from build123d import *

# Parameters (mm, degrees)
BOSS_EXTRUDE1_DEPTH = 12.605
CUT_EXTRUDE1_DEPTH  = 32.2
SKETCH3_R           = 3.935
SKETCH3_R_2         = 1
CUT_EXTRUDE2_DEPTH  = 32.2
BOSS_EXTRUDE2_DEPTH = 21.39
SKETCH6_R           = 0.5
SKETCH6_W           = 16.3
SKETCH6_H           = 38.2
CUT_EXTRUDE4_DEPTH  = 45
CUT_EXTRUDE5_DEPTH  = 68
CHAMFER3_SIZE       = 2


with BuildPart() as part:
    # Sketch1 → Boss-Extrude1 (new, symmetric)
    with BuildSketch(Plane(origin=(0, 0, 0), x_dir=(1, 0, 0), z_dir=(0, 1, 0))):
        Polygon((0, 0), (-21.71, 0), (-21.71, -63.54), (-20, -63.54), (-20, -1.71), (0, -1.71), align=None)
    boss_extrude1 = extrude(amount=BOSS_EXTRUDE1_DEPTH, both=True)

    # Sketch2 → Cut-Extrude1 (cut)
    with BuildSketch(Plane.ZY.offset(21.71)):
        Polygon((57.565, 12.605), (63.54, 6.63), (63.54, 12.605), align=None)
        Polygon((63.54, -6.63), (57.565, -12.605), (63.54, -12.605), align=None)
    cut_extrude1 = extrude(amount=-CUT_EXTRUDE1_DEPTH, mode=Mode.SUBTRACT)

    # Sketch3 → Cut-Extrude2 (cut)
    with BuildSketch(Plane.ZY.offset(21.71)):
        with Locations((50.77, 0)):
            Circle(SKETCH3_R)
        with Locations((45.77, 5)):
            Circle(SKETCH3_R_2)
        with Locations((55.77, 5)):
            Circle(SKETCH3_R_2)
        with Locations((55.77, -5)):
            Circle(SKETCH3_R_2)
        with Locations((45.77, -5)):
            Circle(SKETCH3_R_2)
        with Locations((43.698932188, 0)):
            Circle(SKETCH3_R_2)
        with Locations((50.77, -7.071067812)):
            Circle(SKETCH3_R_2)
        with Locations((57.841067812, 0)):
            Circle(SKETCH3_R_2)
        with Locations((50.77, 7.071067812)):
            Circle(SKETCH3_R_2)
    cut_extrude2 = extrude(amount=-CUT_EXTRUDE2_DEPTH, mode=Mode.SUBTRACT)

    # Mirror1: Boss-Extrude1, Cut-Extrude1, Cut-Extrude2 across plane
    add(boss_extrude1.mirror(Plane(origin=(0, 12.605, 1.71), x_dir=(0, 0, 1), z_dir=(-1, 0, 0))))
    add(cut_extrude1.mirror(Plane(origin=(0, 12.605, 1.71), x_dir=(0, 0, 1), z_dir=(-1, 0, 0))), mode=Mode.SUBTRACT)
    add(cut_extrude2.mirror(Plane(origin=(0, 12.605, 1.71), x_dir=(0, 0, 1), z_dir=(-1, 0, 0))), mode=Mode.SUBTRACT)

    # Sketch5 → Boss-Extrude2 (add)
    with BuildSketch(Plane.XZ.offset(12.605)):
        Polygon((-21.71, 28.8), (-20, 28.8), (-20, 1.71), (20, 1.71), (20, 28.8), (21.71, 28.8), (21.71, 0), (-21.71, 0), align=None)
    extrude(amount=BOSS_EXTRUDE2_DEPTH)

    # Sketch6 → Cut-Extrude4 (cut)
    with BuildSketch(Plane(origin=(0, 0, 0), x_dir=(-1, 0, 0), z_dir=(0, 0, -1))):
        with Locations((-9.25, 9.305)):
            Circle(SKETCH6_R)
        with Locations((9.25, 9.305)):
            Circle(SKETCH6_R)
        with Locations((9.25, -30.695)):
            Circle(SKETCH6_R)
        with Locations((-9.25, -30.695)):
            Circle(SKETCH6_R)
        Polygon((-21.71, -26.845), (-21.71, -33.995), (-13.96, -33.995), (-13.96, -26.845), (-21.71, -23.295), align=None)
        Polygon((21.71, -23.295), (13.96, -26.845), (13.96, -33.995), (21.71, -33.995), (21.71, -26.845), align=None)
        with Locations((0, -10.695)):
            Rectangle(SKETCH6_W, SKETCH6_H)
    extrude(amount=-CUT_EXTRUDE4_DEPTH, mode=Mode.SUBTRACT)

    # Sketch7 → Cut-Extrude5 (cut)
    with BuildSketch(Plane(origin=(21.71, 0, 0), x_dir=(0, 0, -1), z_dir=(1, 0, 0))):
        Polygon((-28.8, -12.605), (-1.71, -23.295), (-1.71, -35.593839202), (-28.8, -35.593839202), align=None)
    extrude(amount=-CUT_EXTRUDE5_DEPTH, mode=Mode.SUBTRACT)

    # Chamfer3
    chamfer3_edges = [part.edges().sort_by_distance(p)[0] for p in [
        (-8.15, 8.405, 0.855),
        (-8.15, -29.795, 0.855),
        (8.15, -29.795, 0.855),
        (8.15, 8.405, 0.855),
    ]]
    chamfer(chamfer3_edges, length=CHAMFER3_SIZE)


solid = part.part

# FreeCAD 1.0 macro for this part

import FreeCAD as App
import Part
import Sketcher
from FreeCAD import Vector


def edges_at(feature, points):
    """Names of the edges that pass closest to the given points."""
    edges = feature.Shape.Edges
    near = lambda p: min(range(len(edges)), key=lambda i: edges[i].distToShape(Part.Vertex(*p))[0])
    return sorted({f"Edge{near(p) + 1}" for p in points})

doc = App.newDocument("Part")
body = doc.addObject("PartDesign::Body", "Body")

# Sketch on XZ plane
sketch1 = body.newObject("Sketcher::SketchObject", "Sketch")
sketch1.AttachmentSupport = (doc.getObject("XZ_Plane"), [""])
sketch1.MapMode = "FlatFace"
sketch1.addGeometry([
    Part.LineSegment(Vector(0, 0, 0), Vector(-21.7, 0, 0)),  # 0
    Part.LineSegment(Vector(-21.7, 0, 0), Vector(-21.7, 63.5, 0)),  # 1
    Part.LineSegment(Vector(-21.7, 63.5, 0), Vector(-20, 63.5, 0)),  # 2
    Part.LineSegment(Vector(-20, 63.5, 0), Vector(-20, 1.7, 0)),  # 3
    Part.LineSegment(Vector(-20, 1.7, 0), Vector(0, 1.7, 0)),  # 4
    Part.LineSegment(Vector(0, 1.7, 0), Vector(0, 0, 0)),  # 5
], False)
sketch1.addConstraint([
    Sketcher.Constraint("Coincident", 0, 2, 1, 1),
    Sketcher.Constraint("Coincident", 1, 2, 2, 1),
    Sketcher.Constraint("Coincident", 2, 2, 3, 1),
    Sketcher.Constraint("Coincident", 3, 2, 4, 1),
    Sketcher.Constraint("Coincident", 4, 2, 5, 1),
    Sketcher.Constraint("Coincident", 5, 2, 0, 1),
    Sketcher.Constraint("Horizontal", 0),
    Sketcher.Constraint("Vertical", 1),
    Sketcher.Constraint("Horizontal", 2),
    Sketcher.Constraint("Vertical", 3),
    Sketcher.Constraint("Horizontal", 4),
    Sketcher.Constraint("Vertical", 5),
    Sketcher.Constraint("Coincident", 5, 2, -1, 1),
    Sketcher.Constraint("Equal", 2, 5),
    Sketcher.Constraint("DistanceX", 4, 1, 4, 2, 20.0),
    Sketcher.Constraint("DistanceX", 0, 2, 0, 1, 21.71),
    Sketcher.Constraint("DistanceY", 1, 1, 1, 2, 63.54),
])
pad1 = body.newObject("PartDesign::Pad", "Pad")
pad1.Profile = sketch1
pad1.Length = 25.21
pad1.Midplane = True

# Sketch on YZ plane
sketch2 = body.newObject("Sketcher::SketchObject", "Sketch001")
sketch2.AttachmentSupport = (doc.getObject("YZ_Plane"), [""])
sketch2.MapMode = "FlatFace"
sketch2.AttachmentOffset = App.Placement(Vector(0, 0, -21.71), App.Rotation())
sketch2.addGeometry([
    Part.LineSegment(Vector(13, 58, 0), Vector(7, 64, 0)),  # 0
    Part.LineSegment(Vector(7, 64, 0), Vector(13, 64, 0)),  # 1
    Part.LineSegment(Vector(13, 64, 0), Vector(13, 58, 0)),  # 2
    Part.LineSegment(Vector(-7, 64, 0), Vector(-13, 58, 0)),  # 3
    Part.LineSegment(Vector(-13, 58, 0), Vector(-13, 64, 0)),  # 4
    Part.LineSegment(Vector(-13, 64, 0), Vector(-7, 64, 0)),  # 5
], False)
sketch2.addConstraint([
    Sketcher.Constraint("Coincident", 0, 2, 1, 1),
    Sketcher.Constraint("Coincident", 1, 2, 2, 1),
    Sketcher.Constraint("Coincident", 2, 2, 0, 1),
    Sketcher.Constraint("Coincident", 3, 2, 4, 1),
    Sketcher.Constraint("Coincident", 4, 2, 5, 1),
    Sketcher.Constraint("Coincident", 5, 2, 3, 1),
    Sketcher.Constraint("Horizontal", 1),
    Sketcher.Constraint("Vertical", 2),
    Sketcher.Constraint("Vertical", 4),
    Sketcher.Constraint("Horizontal", 5),
    Sketcher.Constraint("Symmetric", 2, 2, 3, 2, -2),
    Sketcher.Constraint("Symmetric", 0, 2, 5, 2, -2),
    Sketcher.Constraint("Perpendicular", 0, 3),
    Sketcher.Constraint("DistanceX", 1, 1, 1, 2, 5.975),
    Sketcher.Constraint("DistanceX", -1, 1, 0, 2, 6.63),
    Sketcher.Constraint("DistanceY", -1, 1, 0, 2, 63.54),
])
pocket1 = body.newObject("PartDesign::Pocket", "Pocket")
pocket1.Profile = sketch2
pocket1.Length = 32.2
pocket1.Reversed = True

# Sketch on YZ plane
sketch3 = body.newObject("Sketcher::SketchObject", "Sketch002")
sketch3.AttachmentSupport = (doc.getObject("YZ_Plane"), [""])
sketch3.MapMode = "FlatFace"
sketch3.AttachmentOffset = App.Placement(Vector(0, 0, -21.71), App.Rotation())
sketch3.addGeometry([
    Part.Circle(Vector(0, 50.8, 0), Vector(0, 0, 1), 3.9),  # 0
    Part.Circle(Vector(5, 45.8, 0), Vector(0, 0, 1), 1),  # 1
    Part.Circle(Vector(5, 55.8, 0), Vector(0, 0, 1), 1),  # 2
    Part.Circle(Vector(-5, 55.8, 0), Vector(0, 0, 1), 1),  # 3
    Part.Circle(Vector(-5, 45.8, 0), Vector(0, 0, 1), 1),  # 4
    Part.Circle(Vector(0, 43.7, 0), Vector(0, 0, 1), 1),  # 5
    Part.Circle(Vector(-7.1, 50.8, 0), Vector(0, 0, 1), 1),  # 6
    Part.Circle(Vector(0, 57.8, 0), Vector(0, 0, 1), 1),  # 7
    Part.Circle(Vector(7.1, 50.8, 0), Vector(0, 0, 1), 1),  # 8
], False)
sketch3.addConstraint([
    Sketcher.Constraint("Equal", 1, 2),
    Sketcher.Constraint("Equal", 2, 3),
    Sketcher.Constraint("Equal", 3, 4),
    Sketcher.Constraint("Equal", 4, 5),
    Sketcher.Constraint("Equal", 5, 6),
    Sketcher.Constraint("Equal", 6, 7),
    Sketcher.Constraint("Equal", 7, 8),
    Sketcher.Constraint("Symmetric", 2, 3, 3, 3, -2),
    Sketcher.Constraint("Symmetric", 1, 3, 4, 3, -2),
    Sketcher.Constraint("Symmetric", 6, 3, 8, 3, -2),
    Sketcher.Constraint("PointOnObject", 0, 3, -2),
    Sketcher.Constraint("PointOnObject", 5, 3, -2),
    Sketcher.Constraint("PointOnObject", 7, 3, -2),
    Sketcher.Constraint("Horizontal", 0, 3, 6, 3),
    Sketcher.Constraint("Vertical", 1, 3, 2, 3),
    Sketcher.Constraint("Diameter", 1, 2.0),
    Sketcher.Constraint("Diameter", 0, 7.87),
    Sketcher.Constraint("DistanceX", -1, 1, 1, 3, 5.0),
    Sketcher.Constraint("DistanceY", 1, 3, 0, 3, 5.0),
    Sketcher.Constraint("DistanceY", 0, 3, 2, 3, 5.0),
    Sketcher.Constraint("DistanceY", -1, 1, 0, 3, 50.77),
    Sketcher.Constraint("DistanceY", -1, 1, 5, 3, 43.698932),
    Sketcher.Constraint("DistanceX", 6, 3, -1, 1, 7.071068),
    Sketcher.Constraint("DistanceY", -1, 1, 7, 3, 57.841068),
])
pocket2 = body.newObject("PartDesign::Pocket", "Pocket001")
pocket2.Profile = sketch3
pocket2.Length = 32.2
pocket2.Reversed = True
doc.recompute()

mirrored = body.newObject("PartDesign::Mirrored", "Mirrored")
mirrored.Originals = [pad1, pocket1, pocket2]
mirrored.MirrorPlane = (doc.getObject("YZ_Plane"), [""])
body.Tip = mirrored

# Sketch on XZ plane
sketch4 = body.newObject("Sketcher::SketchObject", "Sketch003")
sketch4.AttachmentSupport = (doc.getObject("XZ_Plane"), [""])
sketch4.MapMode = "FlatFace"
sketch4.AttachmentOffset = App.Placement(Vector(0, 0, 12.605), App.Rotation())
sketch4.addGeometry([
    Part.LineSegment(Vector(-20, 28.8, 0), Vector(-21.7, 28.8, 0)),  # 0
    Part.LineSegment(Vector(-21.7, 28.8, 0), Vector(-21.7, 0, 0)),  # 1
    Part.LineSegment(Vector(-21.7, 0, 0), Vector(21.7, 0, 0)),  # 2
    Part.LineSegment(Vector(21.7, 0, 0), Vector(21.7, 28.8, 0)),  # 3
    Part.LineSegment(Vector(21.7, 28.8, 0), Vector(20, 28.8, 0)),  # 4
    Part.LineSegment(Vector(20, 28.8, 0), Vector(20, 1.7, 0)),  # 5
    Part.LineSegment(Vector(20, 1.7, 0), Vector(-20, 1.7, 0)),  # 6
    Part.LineSegment(Vector(-20, 1.7, 0), Vector(-20, 28.8, 0)),  # 7
], False)
sketch4.addConstraint([
    Sketcher.Constraint("Coincident", 0, 2, 1, 1),
    Sketcher.Constraint("Coincident", 1, 2, 2, 1),
    Sketcher.Constraint("Coincident", 2, 2, 3, 1),
    Sketcher.Constraint("Coincident", 3, 2, 4, 1),
    Sketcher.Constraint("Coincident", 4, 2, 5, 1),
    Sketcher.Constraint("Coincident", 5, 2, 6, 1),
    Sketcher.Constraint("Coincident", 6, 2, 7, 1),
    Sketcher.Constraint("Coincident", 7, 2, 0, 1),
    Sketcher.Constraint("Horizontal", 0),
    Sketcher.Constraint("Vertical", 1),
    Sketcher.Constraint("Horizontal", 2),
    Sketcher.Constraint("Vertical", 3),
    Sketcher.Constraint("Horizontal", 4),
    Sketcher.Constraint("Vertical", 5),
    Sketcher.Constraint("Horizontal", 6),
    Sketcher.Constraint("Vertical", 7),
    Sketcher.Constraint("Symmetric", 1, 2, 2, 2, -1, 1),
    Sketcher.Constraint("Symmetric", 4, 2, 7, 2, -2),
    Sketcher.Constraint("DistanceX", 6, 2, 6, 1, 40.0),
    Sketcher.Constraint("DistanceY", 1, 2, 1, 1, 28.8),
    Sketcher.Constraint("DistanceX", 0, 2, 0, 1, 1.71),
    Sketcher.Constraint("DistanceY", 5, 2, 5, 1, 27.09),
])
pad2 = body.newObject("PartDesign::Pad", "Pad001")
pad2.Profile = sketch4
pad2.Length = 21.39

# Sketch on XY plane
sketch5 = body.newObject("Sketcher::SketchObject", "Sketch004")
sketch5.AttachmentSupport = (doc.getObject("XY_Plane"), [""])
sketch5.MapMode = "FlatFace"
sketch5.addGeometry([
    Part.Circle(Vector(9.2, 9.3, 0), Vector(0, 0, 1), 0.5),  # 0
    Part.Circle(Vector(-9.2, 9.3, 0), Vector(0, 0, 1), 0.5),  # 1
    Part.Circle(Vector(-9.2, -30.7, 0), Vector(0, 0, 1), 0.5),  # 2
    Part.Circle(Vector(9.2, -30.7, 0), Vector(0, 0, 1), 0.5),  # 3
    Part.LineSegment(Vector(21.7, -34, 0), Vector(14, -34, 0)),  # 4
    Part.LineSegment(Vector(14, -34, 0), Vector(14, -26.8, 0)),  # 5
    Part.LineSegment(Vector(14, -26.8, 0), Vector(21.7, -23.3, 0)),  # 6
    Part.LineSegment(Vector(21.7, -23.3, 0), Vector(21.7, -34, 0)),  # 7
    Part.LineSegment(Vector(-21.7, -23.3, 0), Vector(-14, -26.8, 0)),  # 8
    Part.LineSegment(Vector(-14, -26.8, 0), Vector(-14, -34, 0)),  # 9
    Part.LineSegment(Vector(-14, -34, 0), Vector(-21.7, -34, 0)),  # 10
    Part.LineSegment(Vector(-21.7, -34, 0), Vector(-21.7, -23.3, 0)),  # 11
    Part.LineSegment(Vector(8.2, 8.4, 0), Vector(8.2, -29.8, 0)),  # 12
    Part.LineSegment(Vector(8.2, -29.8, 0), Vector(-8.2, -29.8, 0)),  # 13
    Part.LineSegment(Vector(-8.2, -29.8, 0), Vector(-8.2, 8.4, 0)),  # 14
    Part.LineSegment(Vector(-8.2, 8.4, 0), Vector(8.2, 8.4, 0)),  # 15
], False)
sketch5.addConstraint([
    Sketcher.Constraint("Coincident", 4, 2, 5, 1),
    Sketcher.Constraint("Coincident", 5, 2, 6, 1),
    Sketcher.Constraint("Coincident", 6, 2, 7, 1),
    Sketcher.Constraint("Coincident", 7, 2, 4, 1),
    Sketcher.Constraint("Coincident", 8, 2, 9, 1),
    Sketcher.Constraint("Coincident", 9, 2, 10, 1),
    Sketcher.Constraint("Coincident", 10, 2, 11, 1),
    Sketcher.Constraint("Coincident", 11, 2, 8, 1),
    Sketcher.Constraint("Coincident", 12, 2, 13, 1),
    Sketcher.Constraint("Coincident", 13, 2, 14, 1),
    Sketcher.Constraint("Coincident", 14, 2, 15, 1),
    Sketcher.Constraint("Coincident", 15, 2, 12, 1),
    Sketcher.Constraint("Horizontal", 4),
    Sketcher.Constraint("Vertical", 5),
    Sketcher.Constraint("Vertical", 7),
    Sketcher.Constraint("Vertical", 9),
    Sketcher.Constraint("Horizontal", 10),
    Sketcher.Constraint("Vertical", 11),
    Sketcher.Constraint("Vertical", 12),
    Sketcher.Constraint("Horizontal", 13),
    Sketcher.Constraint("Vertical", 14),
    Sketcher.Constraint("Horizontal", 15),
    Sketcher.Constraint("Equal", 0, 1),
    Sketcher.Constraint("Equal", 1, 2),
    Sketcher.Constraint("Equal", 2, 3),
    Sketcher.Constraint("Symmetric", 0, 3, 1, 3, -2),
    Sketcher.Constraint("Symmetric", 2, 3, 3, 3, -2),
    Sketcher.Constraint("Symmetric", 5, 2, 8, 2, -2),
    Sketcher.Constraint("Symmetric", 7, 2, 10, 2, -2),
    Sketcher.Constraint("Horizontal", 6, 2, 11, 2),
    Sketcher.Constraint("Vertical", 1, 3, 2, 3),
    Sketcher.Constraint("Diameter", 0, 1.0),
    Sketcher.Constraint("DistanceX", 13, 2, 13, 1, 16.3),
    Sketcher.Constraint("DistanceY", 7, 2, 7, 1, 10.7),
    Sketcher.Constraint("DistanceY", 12, 2, 12, 1, 38.2),
    Sketcher.Constraint("DistanceY", 2, 3, 1, 3, 40.0),
    Sketcher.Constraint("DistanceX", 4, 2, 4, 1, 7.75),
    Sketcher.Constraint("DistanceY", 5, 1, 5, 2, 7.15),
    Sketcher.Constraint("DistanceX", 1, 3, 0, 3, 18.5),
    Sketcher.Constraint("DistanceY", 4, 2, 3, 3, 3.3),
    Sketcher.Constraint("DistanceX", 12, 2, 3, 3, 1.1),
    Sketcher.Constraint("DistanceY", 3, 3, 12, 2, 0.9),
    Sketcher.Constraint("DistanceX", -1, 1, 4, 2, 13.96),
    Sketcher.Constraint("DistanceY", -1, 1, 0, 3, 9.305),
])
pocket3 = body.newObject("PartDesign::Pocket", "Pocket002")
pocket3.Profile = sketch5
pocket3.Length = 45
pocket3.Reversed = True

# Sketch on YZ plane
sketch6 = body.newObject("Sketcher::SketchObject", "Sketch005")
sketch6.AttachmentSupport = (doc.getObject("YZ_Plane"), [""])
sketch6.MapMode = "FlatFace"
sketch6.AttachmentOffset = App.Placement(Vector(0, 0, 21.71), App.Rotation())
sketch6.addGeometry([
    Part.LineSegment(Vector(-23, 2, 0), Vector(-13, 29, 0)),
    Part.LineSegment(Vector(-13, 29, 0), Vector(-36, 29, 0)),
    Part.LineSegment(Vector(-36, 29, 0), Vector(-36, 2, 0)),
    Part.LineSegment(Vector(-36, 2, 0), Vector(-23, 2, 0)),
], False)
sketch6.addConstraint([
    Sketcher.Constraint("Coincident", 0, 2, 1, 1),
    Sketcher.Constraint("Coincident", 1, 2, 2, 1),
    Sketcher.Constraint("Coincident", 2, 2, 3, 1),
    Sketcher.Constraint("Coincident", 3, 2, 0, 1),
    Sketcher.Constraint("Horizontal", 1),
    Sketcher.Constraint("Vertical", 2),
    Sketcher.Constraint("Horizontal", 3),
    Sketcher.Constraint("DistanceY", 2, 2, 2, 1, 27.09),
    Sketcher.Constraint("DistanceY", -1, 1, 0, 2, 28.8),
    Sketcher.Constraint("DistanceX", 3, 2, 0, 2, 10.69),
    Sketcher.Constraint("DistanceX", 0, 2, -1, 1, 12.605),
    Sketcher.Constraint("DistanceX", 1, 2, 1, 1, 22.988839),
])
pocket4 = body.newObject("PartDesign::Pocket", "Pocket003")
pocket4.Profile = sketch6
pocket4.Length = 68
doc.recompute()

chamfer = body.newObject("PartDesign::Chamfer", "Chamfer")
chamfer.Base = (pocket4, edges_at(pocket4, [
    (-8.15, 8.405, 0.855),
    (-8.15, -29.795, 0.855),
    (8.15, -29.795, 0.855),
    (8.15, 8.405, 0.855),
]))
chamfer.Size = 2

doc.recompute()
